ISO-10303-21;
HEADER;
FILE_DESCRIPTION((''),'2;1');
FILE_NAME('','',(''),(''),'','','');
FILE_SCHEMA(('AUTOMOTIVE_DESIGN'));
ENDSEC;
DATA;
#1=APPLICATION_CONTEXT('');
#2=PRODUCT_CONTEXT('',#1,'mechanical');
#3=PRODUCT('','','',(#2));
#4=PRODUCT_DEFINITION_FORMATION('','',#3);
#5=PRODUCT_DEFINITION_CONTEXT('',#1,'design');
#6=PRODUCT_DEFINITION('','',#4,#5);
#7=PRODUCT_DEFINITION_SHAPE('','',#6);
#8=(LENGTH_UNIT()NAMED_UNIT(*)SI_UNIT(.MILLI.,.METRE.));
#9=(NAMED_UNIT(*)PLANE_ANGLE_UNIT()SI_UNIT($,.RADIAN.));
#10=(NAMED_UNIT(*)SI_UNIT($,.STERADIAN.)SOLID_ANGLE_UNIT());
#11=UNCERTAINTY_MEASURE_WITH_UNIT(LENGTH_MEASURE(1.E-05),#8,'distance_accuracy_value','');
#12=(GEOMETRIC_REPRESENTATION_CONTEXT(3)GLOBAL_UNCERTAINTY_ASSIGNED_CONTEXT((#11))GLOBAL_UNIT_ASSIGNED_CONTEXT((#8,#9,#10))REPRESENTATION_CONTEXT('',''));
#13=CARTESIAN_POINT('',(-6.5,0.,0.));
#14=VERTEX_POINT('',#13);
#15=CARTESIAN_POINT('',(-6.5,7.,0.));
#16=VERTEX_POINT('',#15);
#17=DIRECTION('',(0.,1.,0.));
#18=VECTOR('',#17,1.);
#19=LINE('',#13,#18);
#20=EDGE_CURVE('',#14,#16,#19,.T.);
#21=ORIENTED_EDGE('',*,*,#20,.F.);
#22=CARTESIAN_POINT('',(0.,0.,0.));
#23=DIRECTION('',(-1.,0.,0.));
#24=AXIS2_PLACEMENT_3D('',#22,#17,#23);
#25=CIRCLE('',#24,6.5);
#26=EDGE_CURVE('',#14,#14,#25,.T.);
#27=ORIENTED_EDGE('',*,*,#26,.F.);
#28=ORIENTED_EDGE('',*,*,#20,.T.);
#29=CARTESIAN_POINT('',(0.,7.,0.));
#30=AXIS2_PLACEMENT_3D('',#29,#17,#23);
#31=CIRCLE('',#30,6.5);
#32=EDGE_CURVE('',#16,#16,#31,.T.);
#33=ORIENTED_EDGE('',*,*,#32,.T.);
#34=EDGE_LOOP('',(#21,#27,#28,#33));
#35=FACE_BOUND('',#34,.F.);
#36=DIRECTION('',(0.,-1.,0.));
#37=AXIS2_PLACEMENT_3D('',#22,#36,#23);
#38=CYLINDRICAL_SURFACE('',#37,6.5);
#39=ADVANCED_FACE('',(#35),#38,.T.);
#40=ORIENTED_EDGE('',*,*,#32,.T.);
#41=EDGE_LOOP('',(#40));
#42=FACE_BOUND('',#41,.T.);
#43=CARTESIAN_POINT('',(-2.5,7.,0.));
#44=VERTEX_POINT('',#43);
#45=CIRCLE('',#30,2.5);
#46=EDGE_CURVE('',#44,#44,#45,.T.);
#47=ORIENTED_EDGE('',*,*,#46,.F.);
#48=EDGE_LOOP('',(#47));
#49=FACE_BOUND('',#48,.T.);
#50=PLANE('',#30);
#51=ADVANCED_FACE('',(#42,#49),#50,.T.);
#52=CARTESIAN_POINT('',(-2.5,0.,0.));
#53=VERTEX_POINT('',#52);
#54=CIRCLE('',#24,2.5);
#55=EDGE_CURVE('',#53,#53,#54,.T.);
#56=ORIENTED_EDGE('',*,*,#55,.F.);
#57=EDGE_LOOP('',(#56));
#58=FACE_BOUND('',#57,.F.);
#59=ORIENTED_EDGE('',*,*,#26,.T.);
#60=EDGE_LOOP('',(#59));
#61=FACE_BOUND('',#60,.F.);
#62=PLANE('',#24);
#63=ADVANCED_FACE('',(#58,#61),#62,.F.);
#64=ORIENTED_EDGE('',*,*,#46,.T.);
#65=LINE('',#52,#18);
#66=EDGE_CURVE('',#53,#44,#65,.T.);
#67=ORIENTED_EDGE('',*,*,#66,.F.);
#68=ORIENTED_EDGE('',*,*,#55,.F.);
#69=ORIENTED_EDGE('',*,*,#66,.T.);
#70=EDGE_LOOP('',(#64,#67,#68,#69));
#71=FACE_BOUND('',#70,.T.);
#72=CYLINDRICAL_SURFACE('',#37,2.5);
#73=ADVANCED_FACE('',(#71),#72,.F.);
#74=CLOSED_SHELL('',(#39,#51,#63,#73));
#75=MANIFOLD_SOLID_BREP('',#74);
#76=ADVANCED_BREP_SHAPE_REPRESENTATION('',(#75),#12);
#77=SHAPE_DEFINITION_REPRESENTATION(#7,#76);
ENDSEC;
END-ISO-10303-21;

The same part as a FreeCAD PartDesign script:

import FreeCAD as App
import Part
import Sketcher
Q = App.Units.Quantity

doc = App.newDocument("Part")
body = doc.addObject("PartDesign::Body", "Body")

# Sketch on XZ plane
sketch1 = doc.addObject("Sketcher::SketchObject", "Sketch")
body.addObject(sketch1)
sketch1.AttachmentSupport = (doc.XZ_Plane, [""])
sketch1.MapMode = "FlatFace"
sketch1.addGeometry(Part.Circle(App.Vector(0, 0, 0), App.Vector(0, 0, 1), 6.5), False)
sketch1.addGeometry(Part.Circle(App.Vector(0, 0, 0), App.Vector(0, 0, 1), 2.5), False)
sketch1.addConstraint(Sketcher.Constraint("Coincident", 0, 3, -1, 1))
sketch1.addConstraint(Sketcher.Constraint("Coincident", 1, 3, -1, 1))
sketch1.addConstraint(Sketcher.Constraint("Diameter", 0, Q("13 mm")))
sketch1.addConstraint(Sketcher.Constraint("Diameter", 1, Q("5 mm")))
pad1 = doc.addObject("PartDesign::Pad", "Pad")
body.addObject(pad1)
pad1.Profile = sketch1
pad1.Length = 7
pad1.Reversed = True

doc.recompute()
